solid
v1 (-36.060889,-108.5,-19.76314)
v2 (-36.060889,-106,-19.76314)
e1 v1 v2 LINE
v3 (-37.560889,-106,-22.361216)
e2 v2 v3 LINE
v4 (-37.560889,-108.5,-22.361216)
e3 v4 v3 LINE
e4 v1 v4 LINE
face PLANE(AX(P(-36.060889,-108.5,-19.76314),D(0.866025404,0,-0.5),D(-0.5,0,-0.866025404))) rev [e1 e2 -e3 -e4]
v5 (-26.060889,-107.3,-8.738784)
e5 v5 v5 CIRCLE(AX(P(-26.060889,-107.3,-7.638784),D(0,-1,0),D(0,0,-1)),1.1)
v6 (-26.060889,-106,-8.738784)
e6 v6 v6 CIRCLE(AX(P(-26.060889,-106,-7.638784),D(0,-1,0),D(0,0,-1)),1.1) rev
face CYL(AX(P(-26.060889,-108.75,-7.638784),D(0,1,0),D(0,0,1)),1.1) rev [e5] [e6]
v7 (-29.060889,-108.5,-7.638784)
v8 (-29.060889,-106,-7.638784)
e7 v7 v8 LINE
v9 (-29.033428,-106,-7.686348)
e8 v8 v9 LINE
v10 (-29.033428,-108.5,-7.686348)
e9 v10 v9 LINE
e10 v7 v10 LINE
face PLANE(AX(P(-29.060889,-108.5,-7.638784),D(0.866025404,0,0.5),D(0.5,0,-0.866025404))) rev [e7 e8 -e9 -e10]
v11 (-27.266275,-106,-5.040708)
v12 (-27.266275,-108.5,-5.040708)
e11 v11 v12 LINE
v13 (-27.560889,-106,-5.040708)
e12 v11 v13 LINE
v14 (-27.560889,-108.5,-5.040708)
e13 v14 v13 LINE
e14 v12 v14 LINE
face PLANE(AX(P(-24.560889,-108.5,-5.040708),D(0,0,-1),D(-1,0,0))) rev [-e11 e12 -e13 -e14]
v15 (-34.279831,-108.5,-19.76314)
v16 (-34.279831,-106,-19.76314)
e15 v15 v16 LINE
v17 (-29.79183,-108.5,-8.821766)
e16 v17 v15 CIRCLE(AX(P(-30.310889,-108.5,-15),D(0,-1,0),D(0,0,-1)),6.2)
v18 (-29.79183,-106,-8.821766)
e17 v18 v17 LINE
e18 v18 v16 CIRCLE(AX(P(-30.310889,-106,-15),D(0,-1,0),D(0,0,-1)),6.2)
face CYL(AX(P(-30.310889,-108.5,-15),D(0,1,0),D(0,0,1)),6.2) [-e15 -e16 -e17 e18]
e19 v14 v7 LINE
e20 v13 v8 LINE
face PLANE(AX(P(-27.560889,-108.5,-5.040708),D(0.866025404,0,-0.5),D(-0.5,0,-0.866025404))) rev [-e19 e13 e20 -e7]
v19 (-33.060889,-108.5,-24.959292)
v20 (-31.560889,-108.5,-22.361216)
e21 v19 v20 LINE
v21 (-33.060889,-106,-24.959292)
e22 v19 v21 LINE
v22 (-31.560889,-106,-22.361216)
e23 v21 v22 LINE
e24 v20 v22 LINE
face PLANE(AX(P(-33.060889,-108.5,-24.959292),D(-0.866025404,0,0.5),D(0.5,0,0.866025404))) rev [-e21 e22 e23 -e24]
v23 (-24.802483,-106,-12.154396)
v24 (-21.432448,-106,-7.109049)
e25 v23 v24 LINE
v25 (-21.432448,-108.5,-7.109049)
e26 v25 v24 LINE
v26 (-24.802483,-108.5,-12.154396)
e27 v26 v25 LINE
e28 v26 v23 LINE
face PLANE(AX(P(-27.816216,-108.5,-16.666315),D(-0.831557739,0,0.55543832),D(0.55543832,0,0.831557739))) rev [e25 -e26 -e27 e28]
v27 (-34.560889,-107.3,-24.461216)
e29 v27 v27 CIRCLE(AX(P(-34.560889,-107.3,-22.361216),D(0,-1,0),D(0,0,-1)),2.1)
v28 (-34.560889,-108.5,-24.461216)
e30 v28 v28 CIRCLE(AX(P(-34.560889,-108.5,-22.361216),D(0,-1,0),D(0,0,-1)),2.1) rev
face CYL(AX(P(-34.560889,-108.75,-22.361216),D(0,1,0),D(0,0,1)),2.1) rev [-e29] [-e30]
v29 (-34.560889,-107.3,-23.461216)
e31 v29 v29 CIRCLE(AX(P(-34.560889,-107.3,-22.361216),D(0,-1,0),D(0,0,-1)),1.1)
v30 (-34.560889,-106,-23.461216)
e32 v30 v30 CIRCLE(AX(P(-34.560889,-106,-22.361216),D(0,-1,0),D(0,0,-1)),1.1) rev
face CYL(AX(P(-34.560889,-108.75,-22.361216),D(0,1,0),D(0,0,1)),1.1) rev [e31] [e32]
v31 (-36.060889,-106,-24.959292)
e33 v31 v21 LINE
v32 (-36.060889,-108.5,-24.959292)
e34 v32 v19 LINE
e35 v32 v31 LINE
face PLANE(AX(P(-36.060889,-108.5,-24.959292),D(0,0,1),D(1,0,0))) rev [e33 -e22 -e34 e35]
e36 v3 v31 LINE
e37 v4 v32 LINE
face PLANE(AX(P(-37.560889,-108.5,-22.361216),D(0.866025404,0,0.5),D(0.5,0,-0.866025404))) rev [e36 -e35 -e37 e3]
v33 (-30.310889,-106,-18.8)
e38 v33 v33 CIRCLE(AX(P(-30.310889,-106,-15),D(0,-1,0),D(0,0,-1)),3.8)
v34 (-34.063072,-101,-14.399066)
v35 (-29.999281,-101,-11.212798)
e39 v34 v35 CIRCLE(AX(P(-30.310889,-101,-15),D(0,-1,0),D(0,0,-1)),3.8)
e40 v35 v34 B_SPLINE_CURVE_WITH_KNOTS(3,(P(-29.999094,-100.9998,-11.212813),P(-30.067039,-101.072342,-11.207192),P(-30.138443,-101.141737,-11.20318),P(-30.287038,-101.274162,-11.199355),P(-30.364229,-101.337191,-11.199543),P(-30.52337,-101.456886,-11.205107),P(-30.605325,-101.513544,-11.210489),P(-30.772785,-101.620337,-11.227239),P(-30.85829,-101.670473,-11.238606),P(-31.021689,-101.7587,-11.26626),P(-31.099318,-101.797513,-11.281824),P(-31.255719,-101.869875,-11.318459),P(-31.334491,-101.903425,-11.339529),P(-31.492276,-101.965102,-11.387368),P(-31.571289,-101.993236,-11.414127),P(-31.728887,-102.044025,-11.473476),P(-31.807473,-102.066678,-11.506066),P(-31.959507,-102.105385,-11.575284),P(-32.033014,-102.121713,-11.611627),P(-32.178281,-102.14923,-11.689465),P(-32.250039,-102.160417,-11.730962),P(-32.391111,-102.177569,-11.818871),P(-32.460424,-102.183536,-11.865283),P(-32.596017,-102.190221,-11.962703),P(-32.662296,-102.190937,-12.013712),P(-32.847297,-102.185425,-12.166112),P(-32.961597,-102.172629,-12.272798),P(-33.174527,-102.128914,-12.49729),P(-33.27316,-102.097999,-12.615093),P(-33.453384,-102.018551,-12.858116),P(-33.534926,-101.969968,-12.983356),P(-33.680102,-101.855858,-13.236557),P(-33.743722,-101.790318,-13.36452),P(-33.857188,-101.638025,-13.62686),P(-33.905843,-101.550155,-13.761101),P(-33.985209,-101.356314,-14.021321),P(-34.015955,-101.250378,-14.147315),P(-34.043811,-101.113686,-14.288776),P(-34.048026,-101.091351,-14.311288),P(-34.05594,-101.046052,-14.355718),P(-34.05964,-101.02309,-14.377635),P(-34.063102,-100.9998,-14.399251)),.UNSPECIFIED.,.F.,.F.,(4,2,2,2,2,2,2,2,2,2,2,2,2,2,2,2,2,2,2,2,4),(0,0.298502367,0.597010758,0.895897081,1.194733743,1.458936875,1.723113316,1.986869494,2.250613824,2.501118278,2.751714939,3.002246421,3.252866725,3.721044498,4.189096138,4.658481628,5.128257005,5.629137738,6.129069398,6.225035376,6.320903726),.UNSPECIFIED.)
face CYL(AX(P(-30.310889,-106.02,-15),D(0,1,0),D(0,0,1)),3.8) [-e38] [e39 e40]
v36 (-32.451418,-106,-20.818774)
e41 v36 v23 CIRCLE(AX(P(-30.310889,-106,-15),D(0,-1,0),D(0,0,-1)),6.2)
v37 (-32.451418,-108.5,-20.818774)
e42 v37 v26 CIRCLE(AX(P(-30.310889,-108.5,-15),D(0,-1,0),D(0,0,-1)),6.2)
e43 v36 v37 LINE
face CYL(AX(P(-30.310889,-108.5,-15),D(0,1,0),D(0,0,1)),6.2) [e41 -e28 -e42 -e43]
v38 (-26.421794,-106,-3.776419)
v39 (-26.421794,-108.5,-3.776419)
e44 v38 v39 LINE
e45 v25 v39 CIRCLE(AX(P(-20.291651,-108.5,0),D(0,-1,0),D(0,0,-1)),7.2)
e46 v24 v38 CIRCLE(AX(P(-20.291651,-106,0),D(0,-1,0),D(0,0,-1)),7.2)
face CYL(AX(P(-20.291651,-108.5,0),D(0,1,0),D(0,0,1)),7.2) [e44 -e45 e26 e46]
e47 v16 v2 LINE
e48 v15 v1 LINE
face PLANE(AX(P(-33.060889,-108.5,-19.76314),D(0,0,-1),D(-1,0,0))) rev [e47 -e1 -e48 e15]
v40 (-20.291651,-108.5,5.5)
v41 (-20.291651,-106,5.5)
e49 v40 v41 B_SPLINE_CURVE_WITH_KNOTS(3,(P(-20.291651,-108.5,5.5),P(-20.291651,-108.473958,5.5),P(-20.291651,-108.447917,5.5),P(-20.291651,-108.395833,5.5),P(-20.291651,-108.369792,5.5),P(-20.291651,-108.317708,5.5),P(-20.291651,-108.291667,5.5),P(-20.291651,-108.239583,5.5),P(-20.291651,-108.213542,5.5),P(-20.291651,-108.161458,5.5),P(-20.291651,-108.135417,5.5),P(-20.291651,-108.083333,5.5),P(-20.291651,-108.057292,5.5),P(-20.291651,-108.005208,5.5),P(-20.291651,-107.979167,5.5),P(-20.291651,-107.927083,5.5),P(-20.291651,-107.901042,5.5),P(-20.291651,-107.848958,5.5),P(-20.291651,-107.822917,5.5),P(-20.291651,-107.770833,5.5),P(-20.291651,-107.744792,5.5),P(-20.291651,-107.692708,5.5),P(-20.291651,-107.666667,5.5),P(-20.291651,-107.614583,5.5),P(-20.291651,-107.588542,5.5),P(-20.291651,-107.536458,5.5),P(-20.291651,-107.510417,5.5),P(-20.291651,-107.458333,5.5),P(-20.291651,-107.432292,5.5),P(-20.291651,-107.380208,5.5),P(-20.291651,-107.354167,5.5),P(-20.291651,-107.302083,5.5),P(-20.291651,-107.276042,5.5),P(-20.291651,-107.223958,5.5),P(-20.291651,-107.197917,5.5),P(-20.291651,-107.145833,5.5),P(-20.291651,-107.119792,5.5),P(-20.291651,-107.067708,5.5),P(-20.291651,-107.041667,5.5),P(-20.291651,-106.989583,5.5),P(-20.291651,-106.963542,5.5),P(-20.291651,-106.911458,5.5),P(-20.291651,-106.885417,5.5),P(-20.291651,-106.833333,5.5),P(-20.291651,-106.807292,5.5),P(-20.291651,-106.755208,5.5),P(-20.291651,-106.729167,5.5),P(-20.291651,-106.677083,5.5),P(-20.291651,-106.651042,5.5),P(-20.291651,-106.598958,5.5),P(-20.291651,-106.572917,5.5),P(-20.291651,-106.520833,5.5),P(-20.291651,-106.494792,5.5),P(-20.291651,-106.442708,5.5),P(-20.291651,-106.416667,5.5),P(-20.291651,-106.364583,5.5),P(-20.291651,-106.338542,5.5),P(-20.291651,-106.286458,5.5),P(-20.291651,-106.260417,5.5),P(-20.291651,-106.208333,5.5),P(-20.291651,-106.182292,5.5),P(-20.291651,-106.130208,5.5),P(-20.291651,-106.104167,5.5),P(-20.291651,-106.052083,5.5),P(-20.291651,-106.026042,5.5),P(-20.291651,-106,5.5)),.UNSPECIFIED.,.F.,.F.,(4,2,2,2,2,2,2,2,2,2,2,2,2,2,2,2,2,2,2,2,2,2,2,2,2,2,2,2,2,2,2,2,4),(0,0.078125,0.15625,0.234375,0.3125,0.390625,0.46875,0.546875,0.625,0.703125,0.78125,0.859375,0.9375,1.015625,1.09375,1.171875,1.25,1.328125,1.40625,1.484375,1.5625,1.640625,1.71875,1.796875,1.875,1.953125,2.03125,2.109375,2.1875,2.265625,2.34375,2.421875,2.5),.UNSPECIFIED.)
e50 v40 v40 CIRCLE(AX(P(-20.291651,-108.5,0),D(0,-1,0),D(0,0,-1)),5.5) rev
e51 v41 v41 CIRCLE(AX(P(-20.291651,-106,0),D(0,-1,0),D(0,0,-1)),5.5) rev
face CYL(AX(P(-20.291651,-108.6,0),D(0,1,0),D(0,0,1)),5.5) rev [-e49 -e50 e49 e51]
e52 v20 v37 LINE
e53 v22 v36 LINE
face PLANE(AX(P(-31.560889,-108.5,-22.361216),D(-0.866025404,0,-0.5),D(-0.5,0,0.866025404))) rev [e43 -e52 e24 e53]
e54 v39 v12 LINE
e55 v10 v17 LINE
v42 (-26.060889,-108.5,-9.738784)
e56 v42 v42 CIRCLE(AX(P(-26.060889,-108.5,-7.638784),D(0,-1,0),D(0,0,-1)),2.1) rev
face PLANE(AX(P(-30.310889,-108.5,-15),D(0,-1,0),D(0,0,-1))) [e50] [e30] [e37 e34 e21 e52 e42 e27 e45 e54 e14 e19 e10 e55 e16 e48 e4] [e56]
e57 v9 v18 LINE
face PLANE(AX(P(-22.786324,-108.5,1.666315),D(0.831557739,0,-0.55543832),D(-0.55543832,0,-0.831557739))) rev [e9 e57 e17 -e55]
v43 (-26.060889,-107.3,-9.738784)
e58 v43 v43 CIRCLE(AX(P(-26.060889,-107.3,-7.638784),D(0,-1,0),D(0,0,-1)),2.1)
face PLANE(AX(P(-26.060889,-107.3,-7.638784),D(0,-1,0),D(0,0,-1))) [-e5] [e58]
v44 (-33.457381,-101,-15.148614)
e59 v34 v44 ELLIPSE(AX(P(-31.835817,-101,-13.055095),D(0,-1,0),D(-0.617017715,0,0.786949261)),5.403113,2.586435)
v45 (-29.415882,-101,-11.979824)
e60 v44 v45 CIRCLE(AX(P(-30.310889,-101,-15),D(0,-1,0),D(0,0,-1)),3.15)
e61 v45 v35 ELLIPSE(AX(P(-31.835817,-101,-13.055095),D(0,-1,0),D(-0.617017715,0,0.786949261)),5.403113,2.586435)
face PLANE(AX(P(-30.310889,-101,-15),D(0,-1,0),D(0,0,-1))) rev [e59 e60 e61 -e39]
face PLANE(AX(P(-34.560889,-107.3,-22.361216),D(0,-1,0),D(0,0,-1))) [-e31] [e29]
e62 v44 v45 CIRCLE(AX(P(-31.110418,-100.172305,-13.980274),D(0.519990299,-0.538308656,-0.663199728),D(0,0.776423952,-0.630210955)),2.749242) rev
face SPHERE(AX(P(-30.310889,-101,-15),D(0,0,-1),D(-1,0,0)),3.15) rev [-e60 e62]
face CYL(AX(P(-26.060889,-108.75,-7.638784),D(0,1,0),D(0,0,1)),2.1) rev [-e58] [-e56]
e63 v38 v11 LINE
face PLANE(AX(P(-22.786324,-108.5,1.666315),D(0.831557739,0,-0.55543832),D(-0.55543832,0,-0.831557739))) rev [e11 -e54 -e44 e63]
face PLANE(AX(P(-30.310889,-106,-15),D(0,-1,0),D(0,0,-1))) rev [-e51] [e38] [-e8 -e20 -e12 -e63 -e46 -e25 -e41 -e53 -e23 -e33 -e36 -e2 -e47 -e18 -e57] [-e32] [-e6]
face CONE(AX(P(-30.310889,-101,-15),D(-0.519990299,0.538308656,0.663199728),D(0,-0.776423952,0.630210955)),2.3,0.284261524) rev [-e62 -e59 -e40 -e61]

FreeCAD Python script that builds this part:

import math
import FreeCAD as App
import Part
import Sketcher
from FreeCAD import Vector
Q = App.Units.Quantity


def add_polygon(sketch, points):
    """Adds a closed chain of lines whose ends are joined by coincident constraints."""
    first, n = sketch.GeometryCount, len(points)
    for a, b in zip(points, points[1:] + points[:1]):
        sketch.addGeometry(Part.LineSegment(App.Vector(*a, 0), App.Vector(*b, 0)), False)
    for i in range(n):
        sketch.addConstraint(Sketcher.Constraint("Coincident", first + i, 2, first + (i + 1) % n, 1))

doc = App.newDocument("Part")
body = doc.addObject("PartDesign::Body", "Body")

# Sketch on XZ plane
sketch1 = body.newObject("Sketcher::SketchObject", "Sketch")
sketch1.AttachmentSupport = (doc.getObject("XZ_Plane"), [""])
sketch1.MapMode = "FlatFace"
sketch1.AttachmentOffset = App.Placement(Vector(0, 0, 101), App.Rotation())
sketch1.addGeometry(Part.Circle(Vector(-30.3, -15, 0), Vector(0, 0, 1), 3.8), False)
sketch1.addConstraint([
    Sketcher.Constraint("Diameter", 0, 7.6),
    Sketcher.Constraint("DistanceY", 0, 3, -1, 1, 15.0),
    Sketcher.Constraint("DistanceX", 0, 3, -1, 1, 30.310889),
])
pad1 = body.newObject("PartDesign::Pad", "Pad")
pad1.Profile = sketch1
pad1.Length = 5.02

# Sketch on XZ plane
sketch2 = body.newObject("Sketcher::SketchObject", "Sketch001")
sketch2.AttachmentSupport = (doc.getObject("XZ_Plane"), [""])
sketch2.MapMode = "FlatFace"
sketch2.AttachmentOffset = App.Placement(Vector(0, 0, 106), App.Rotation())
sketch2.addGeometry(Part.Circle(Vector(-30, -15, 0), Vector(0, 0, 1), 6), False)
sketch2.addConstraint([
    Sketcher.Constraint("Diameter", 0, 12.4),
    Sketcher.Constraint("DistanceY", 0, 3, -1, 1, 15.0),
    Sketcher.Constraint("DistanceX", 0, 3, -1, 1, 30.310889),
])
pad2 = body.newObject("PartDesign::Pad", "Pad001")
pad2.Profile = sketch2
pad2.Length = 2.5

# Sketch on XZ plane
sketch3 = body.newObject("Sketcher::SketchObject", "Sketch002")
sketch3.AttachmentSupport = (doc.getObject("XZ_Plane"), [""])
sketch3.MapMode = "FlatFace"
sketch3.AttachmentOffset = App.Placement(Vector(0, 0, 106), App.Rotation())
add_polygon(sketch3, [(-31.6, -22.4), (-33.1, -19.8), (-36.1, -19.8), (-37.6, -22.4), (-36.1, -25), (-33.1, -25)])  # lines 0-5
sketch3.addConstraint([
    Sketcher.Constraint("Horizontal", 1),
    Sketcher.Constraint("Horizontal", 4),
    Sketcher.Constraint("Parallel", 0, 3),
    Sketcher.Constraint("Parallel", 2, 5),
    Sketcher.Constraint("Horizontal", 2, 2, 5, 2),
    Sketcher.Constraint("Vertical", 1, 2, 3, 2),
    Sketcher.Constraint("Vertical", 0, 2, 4, 2),
    Sketcher.Constraint("DistanceX", 1, 2, 1, 1, 3.0),
    Sketcher.Constraint("Angle", 0, Q("120 deg")),
    Sketcher.Constraint("Distance", 0, 3.0),
    Sketcher.Constraint("DistanceX", 0, 2, -1, 1, 33.060889),
    Sketcher.Constraint("DistanceY", 0, 2, -1, 1, 19.76314),
])
pad3 = body.newObject("PartDesign::Pad", "Pad002")
pad3.Profile = sketch3
pad3.Length = 2.5

# Sketch on XZ plane
sketch4 = body.newObject("Sketcher::SketchObject", "Sketch003")
sketch4.AttachmentSupport = (doc.getObject("XZ_Plane"), [""])
sketch4.MapMode = "FlatFace"
sketch4.AttachmentOffset = App.Placement(Vector(0, 0, 106), App.Rotation())
add_polygon(sketch4, [(-23.1, -7.6), (-24.6, -5), (-27.6, -5), (-29.1, -7.6), (-27.6, -10.2), (-24.6, -10.2)])  # lines 0-5
sketch4.addConstraint([
    Sketcher.Constraint("Horizontal", 1),
    Sketcher.Constraint("Horizontal", 4),
    Sketcher.Constraint("Parallel", 0, 3),
    Sketcher.Constraint("Parallel", 2, 5),
    Sketcher.Constraint("Horizontal", 2, 2, 5, 2),
    Sketcher.Constraint("Vertical", 1, 2, 3, 2),
    Sketcher.Constraint("Vertical", 0, 2, 4, 2),
    Sketcher.Constraint("DistanceX", 1, 2, 1, 1, 3.0),
    Sketcher.Constraint("Angle", 0, Q("120 deg")),
    Sketcher.Constraint("Distance", 0, 3.0),
    Sketcher.Constraint("DistanceX", 0, 2, -1, 1, 24.560889),
    Sketcher.Constraint("DistanceY", 3, 2, -1, 1, 10.23686),
])
pad4 = body.newObject("PartDesign::Pad", "Pad003")
pad4.Profile = sketch4
pad4.Length = 2.5

# Sketch on XZ plane
sketch5 = body.newObject("Sketcher::SketchObject", "Sketch004")
sketch5.AttachmentSupport = (doc.getObject("XZ_Plane"), [""])
sketch5.MapMode = "FlatFace"
sketch5.AttachmentOffset = App.Placement(Vector(0, 0, 101), App.Rotation())
sketch5.addGeometry([
    Part.LineSegment(Vector(-30.3, -11.8, 0), Vector(-30.3, -18.1, 0)),
    Part.ArcOfCircle(Part.Circle(Vector(-30.3, -15, 0), Vector(0, 0, 1), 3.1), math.radians(-90), math.radians(90)),
], False)
sketch5.addGeometry(Part.LineSegment(Vector(-30.3, -18.1, 0), Vector(-30.3, -11.8, 0)), True)  # axis
sketch5.addConstraint([
    Sketcher.Constraint("Coincident", 0, 1, 1, 2),
    Sketcher.Constraint("Coincident", 1, 1, 0, 2),
    Sketcher.Constraint("Vertical", 0),
    Sketcher.Constraint("Vertical", 2),
    Sketcher.Constraint("Coincident", 2, 1, 1, 1),
    Sketcher.Constraint("Vertical", 1, 3, 0, 1),
    Sketcher.Constraint("Equal", 0, 2),
    Sketcher.Constraint("Radius", 1, 3.15),
    Sketcher.Constraint("DistanceY", 1, 3, -1, 1, 15.0),
    Sketcher.Constraint("DistanceX", 1, 3, -1, 1, 30.310889),
])
groove = body.newObject("PartDesign::Groove", "Groove")
groove.Profile = sketch5
groove.ReferenceAxis = (sketch5, ["Axis0"])
groove.Angle = 360

# Sketch on XZ plane
sketch6 = body.newObject("Sketcher::SketchObject", "Sketch005")
sketch6.AttachmentSupport = (doc.getObject("XZ_Plane"), [""])
sketch6.MapMode = "FlatFace"
sketch6.AttachmentOffset = App.Placement(Vector(0, 0, 106), App.Rotation())
add_polygon(sketch6, [(-28, -17), (-18, -2), (-23, 2), (-33, -13)])  # lines 0-3
sketch6.addConstraint([
    Sketcher.Constraint("Perpendicular", 0, 1),
    Sketcher.Constraint("Perpendicular", 1, 2),
    Sketcher.Constraint("Perpendicular", 2, 3),
    Sketcher.Constraint("Distance", 1, 6.0),
    Sketcher.Constraint("DistanceY", 2, 2, 1, 2, 15.0),
    Sketcher.Constraint("DistanceX", 0, 2, -1, 1, 17.796978),
    Sketcher.Constraint("DistanceY", 0, 2, 1, 2, 3.33263),
    Sketcher.Constraint("DistanceY", 0, 2, -1, 1, 1.666315),
])
pad5 = body.newObject("PartDesign::Pad", "Pad004")
pad5.Profile = sketch6
pad5.Length = 2.5

# Sketch on XZ plane
sketch7 = body.newObject("Sketcher::SketchObject", "Sketch006")
sketch7.AttachmentSupport = (doc.getObject("XZ_Plane"), [""])
sketch7.MapMode = "FlatFace"
sketch7.AttachmentOffset = App.Placement(Vector(0, 0, 106), App.Rotation())
sketch7.addGeometry(Part.Circle(Vector(-20, 0, 0), Vector(0, 0, 1), 7), False)
sketch7.addConstraint([
    Sketcher.Constraint("PointOnObject", 0, 3, -1),
    Sketcher.Constraint("Diameter", 0, 14.4),
    Sketcher.Constraint("DistanceX", 0, 3, -1, 1, 20.291651),
])
pad6 = body.newObject("PartDesign::Pad", "Pad005")
pad6.Profile = sketch7
pad6.Length = 2.5

# Sketch on XZ plane
sketch8 = body.newObject("Sketcher::SketchObject", "Sketch007")
sketch8.AttachmentSupport = (doc.getObject("XZ_Plane"), [""])
sketch8.MapMode = "FlatFace"
sketch8.AttachmentOffset = App.Placement(Vector(0, 0, 105.9), App.Rotation())
sketch8.addGeometry(Part.Circle(Vector(-20, 0, 0), Vector(0, 0, 1), 6), False)
sketch8.addConstraint([
    Sketcher.Constraint("PointOnObject", 0, 3, -1),
    Sketcher.Constraint("Diameter", 0, 11.0),
    Sketcher.Constraint("DistanceX", 0, 3, -1, 1, 20.291651),
])
pocket1 = body.newObject("PartDesign::Pocket", "Pocket")
pocket1.Profile = sketch8
pocket1.Length = 2.7
pocket1.Reversed = True

# Sketch on XZ plane
sketch9 = body.newObject("Sketcher::SketchObject", "Sketch008")
sketch9.AttachmentSupport = (doc.getObject("XZ_Plane"), [""])
sketch9.MapMode = "FlatFace"
sketch9.AttachmentOffset = App.Placement(Vector(0, 0, 105), App.Rotation())
sketch9.addGeometry(Part.Circle(Vector(-34.6, -22.4, 0), Vector(0, 0, 1), 1.1), False)
sketch9.addConstraint([
    Sketcher.Constraint("Diameter", 0, 2.2),
    Sketcher.Constraint("DistanceX", 0, 3, -1, 1, 34.560889),
    Sketcher.Constraint("DistanceY", 0, 3, -1, 1, 22.361216),
])
pocket2 = body.newObject("PartDesign::Pocket", "Pocket001")
pocket2.Profile = sketch9
pocket2.Length = 3.75
pocket2.Reversed = True

# Sketch on XZ plane
sketch10 = body.newObject("Sketcher::SketchObject", "Sketch009")
sketch10.AttachmentSupport = (doc.getObject("XZ_Plane"), [""])
sketch10.MapMode = "FlatFace"
sketch10.AttachmentOffset = App.Placement(Vector(0, 0, 107.3), App.Rotation())
sketch10.addGeometry(Part.Circle(Vector(-34.6, -22.4, 0), Vector(0, 0, 1), 2.1), False)
sketch10.addConstraint([
    Sketcher.Constraint("Diameter", 0, 4.2),
    Sketcher.Constraint("DistanceX", 0, 3, -1, 1, 34.560889),
    Sketcher.Constraint("DistanceY", 0, 3, -1, 1, 22.361216),
])
pocket3 = body.newObject("PartDesign::Pocket", "Pocket002")
pocket3.Profile = sketch10
pocket3.Length = 1.45
pocket3.Reversed = True

# Sketch on XZ plane
sketch11 = body.newObject("Sketcher::SketchObject", "Sketch010")
sketch11.AttachmentSupport = (doc.getObject("XZ_Plane"), [""])
sketch11.MapMode = "FlatFace"
sketch11.AttachmentOffset = App.Placement(Vector(0, 0, 105), App.Rotation())
sketch11.addGeometry(Part.Circle(Vector(-26.1, -7.6, 0), Vector(0, 0, 1), 1.1), False)
sketch11.addConstraint([
    Sketcher.Constraint("Diameter", 0, 2.2),
    Sketcher.Constraint("DistanceX", 0, 3, -1, 1, 26.060889),
    Sketcher.Constraint("DistanceY", 0, 3, -1, 1, 7.638784),
])
pocket4 = body.newObject("PartDesign::Pocket", "Pocket003")
pocket4.Profile = sketch11
pocket4.Length = 3.75
pocket4.Reversed = True

# Sketch on XZ plane
sketch12 = body.newObject("Sketcher::SketchObject", "Sketch011")
sketch12.AttachmentSupport = (doc.getObject("XZ_Plane"), [""])
sketch12.MapMode = "FlatFace"
sketch12.AttachmentOffset = App.Placement(Vector(0, 0, 107.3), App.Rotation())
sketch12.addGeometry(Part.Circle(Vector(-26.1, -7.6, 0), Vector(0, 0, 1), 2.1), False)
sketch12.addConstraint([
    Sketcher.Constraint("Diameter", 0, 4.2),
    Sketcher.Constraint("DistanceX", 0, 3, -1, 1, 26.060889),
    Sketcher.Constraint("DistanceY", 0, 3, -1, 1, 7.638784),
])
pocket5 = body.newObject("PartDesign::Pocket", "Pocket004")
pocket5.Profile = sketch12
pocket5.Length = 1.45
pocket5.Reversed = True

# Sketch on an angled plane
sketch13 = body.newObject("Sketcher::SketchObject", "Sketch012")
sketch13.Placement = App.Placement(Vector(-55.559435, -21.315405, -26.260717), App.Rotation(Vector(0.376944076, 0.144614785, -0.914876892), Vector(-0.358194185, 0.93364711, 0), Vector(0.854172166, 0.327703583, 0.403732923), "ZXY"))
add_polygon(sketch13, [(-12.3, -83.4), (-10.7, -81.8), (-22.8, -61.1), (-29, -67.6)])  # lines 0-3
sketch13.addGeometry(Part.LineSegment(Vector(-12.3, -83.4, 0), Vector(-29, -67.6, 0)), True)  # axis
sketch13.addConstraint([
    Sketcher.Constraint("Coincident", 4, 1, 3, 2),
    Sketcher.Constraint("Coincident", 4, 2, 2, 2),
    Sketcher.Constraint("Parallel", 0, 2),
    Sketcher.Constraint("Perpendicular", 2, 3),
    Sketcher.Constraint("Distance", 3, 23.0),
    Sketcher.Constraint("Distance", 0, 2.3),
    Sketcher.Constraint("Distance", 2, 9.02),
    Sketcher.Constraint("DistanceX", 0, 2, -1, 1, 10.7241),
    Sketcher.Constraint("DistanceY", 3, 2, 2, 2, 15.8435),
    Sketcher.Constraint("DistanceY", 0, 2, -1, 1, 81.77389),
])
groove2 = body.newObject("PartDesign::Groove", "Groove001")
groove2.Profile = sketch13
groove2.ReferenceAxis = (sketch13, ["Axis0"])
groove2.Angle = 360

doc.recompute()
